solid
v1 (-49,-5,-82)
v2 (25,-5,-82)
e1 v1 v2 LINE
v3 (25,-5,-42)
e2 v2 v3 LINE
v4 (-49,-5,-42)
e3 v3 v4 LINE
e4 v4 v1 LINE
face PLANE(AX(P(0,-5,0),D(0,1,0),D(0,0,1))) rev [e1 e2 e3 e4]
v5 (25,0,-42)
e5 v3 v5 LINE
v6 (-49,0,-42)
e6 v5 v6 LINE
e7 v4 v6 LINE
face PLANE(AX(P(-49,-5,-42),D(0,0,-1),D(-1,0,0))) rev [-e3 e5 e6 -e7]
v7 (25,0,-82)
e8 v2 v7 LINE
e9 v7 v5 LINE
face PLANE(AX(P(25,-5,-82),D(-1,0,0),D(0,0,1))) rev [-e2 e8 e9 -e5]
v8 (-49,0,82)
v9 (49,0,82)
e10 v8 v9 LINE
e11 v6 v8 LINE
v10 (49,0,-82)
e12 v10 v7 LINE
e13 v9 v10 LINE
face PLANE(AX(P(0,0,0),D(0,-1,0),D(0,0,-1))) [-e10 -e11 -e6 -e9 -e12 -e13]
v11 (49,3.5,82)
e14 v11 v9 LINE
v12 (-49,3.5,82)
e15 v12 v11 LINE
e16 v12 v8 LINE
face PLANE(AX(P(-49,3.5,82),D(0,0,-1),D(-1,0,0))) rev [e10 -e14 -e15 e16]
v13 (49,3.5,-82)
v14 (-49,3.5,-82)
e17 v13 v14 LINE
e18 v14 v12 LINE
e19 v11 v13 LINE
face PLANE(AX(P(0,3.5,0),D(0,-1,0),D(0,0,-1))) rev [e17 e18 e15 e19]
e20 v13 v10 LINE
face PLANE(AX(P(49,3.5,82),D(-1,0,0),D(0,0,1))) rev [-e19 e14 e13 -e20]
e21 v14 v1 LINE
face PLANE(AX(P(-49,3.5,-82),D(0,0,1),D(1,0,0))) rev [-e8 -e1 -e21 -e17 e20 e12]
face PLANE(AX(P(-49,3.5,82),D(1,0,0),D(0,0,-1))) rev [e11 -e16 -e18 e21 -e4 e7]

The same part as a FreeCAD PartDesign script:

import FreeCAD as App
import Part
import Sketcher
from FreeCAD import Vector

doc = App.newDocument("Part")
body = doc.addObject("PartDesign::Body", "Body")

# Sketch on XZ plane
sketch1 = doc.addObject("Sketcher::SketchObject", "Sketch")
body.addObject(sketch1)
sketch1.AttachmentSupport = (doc.XZ_Plane, [""])
sketch1.MapMode = "FlatFace"
sketch1.addGeometry([
    Part.LineSegment(Vector(-49, -82, 0), Vector(-49, 82, 0)),
    Part.LineSegment(Vector(-49, 82, 0), Vector(49, 82, 0)),
    Part.LineSegment(Vector(49, 82, 0), Vector(49, -82, 0)),
    Part.LineSegment(Vector(49, -82, 0), Vector(-49, -82, 0)),
], False)
sketch1.addConstraint([
    Sketcher.Constraint("Coincident", 0, 2, 1, 1),
    Sketcher.Constraint("Coincident", 1, 2, 2, 1),
    Sketcher.Constraint("Coincident", 2, 2, 3, 1),
    Sketcher.Constraint("Coincident", 3, 2, 0, 1),
    Sketcher.Constraint("Vertical", 0),
    Sketcher.Constraint("Horizontal", 1),
    Sketcher.Constraint("Vertical", 2),
    Sketcher.Constraint("Horizontal", 3),
    Sketcher.Constraint("Symmetric", 0, 2, 2, 2, -1, 1),
    Sketcher.Constraint("DistanceX", 1, 1, 1, 2, 98.0),
    Sketcher.Constraint("DistanceY", 0, 1, 0, 2, 164.0),
])
pad1 = doc.addObject("PartDesign::Pad", "Pad")
body.addObject(pad1)
pad1.Profile = sketch1
pad1.Length = 3.5
pad1.Reversed = True

# Sketch on XZ plane
sketch2 = doc.addObject("Sketcher::SketchObject", "Sketch001")
body.addObject(sketch2)
sketch2.AttachmentSupport = (doc.XZ_Plane, [""])
sketch2.MapMode = "FlatFace"
sketch2.addGeometry([
    Part.LineSegment(Vector(-49, -42, 0), Vector(-49, -82, 0)),
    Part.LineSegment(Vector(-49, -82, 0), Vector(25, -82, 0)),
    Part.LineSegment(Vector(25, -82, 0), Vector(25, -42, 0)),
    Part.LineSegment(Vector(25, -42, 0), Vector(-49, -42, 0)),
], False)
sketch2.addConstraint([
    Sketcher.Constraint("Coincident", 0, 2, 1, 1),
    Sketcher.Constraint("Coincident", 1, 2, 2, 1),
    Sketcher.Constraint("Coincident", 2, 2, 3, 1),
    Sketcher.Constraint("Coincident", 3, 2, 0, 1),
    Sketcher.Constraint("Vertical", 0),
    Sketcher.Constraint("Horizontal", 1),
    Sketcher.Constraint("Vertical", 2),
    Sketcher.Constraint("Horizontal", 3),
    Sketcher.Constraint("DistanceX", 1, 1, 1, 2, 74.0),
    Sketcher.Constraint("DistanceY", 0, 2, 0, 1, 40.0),
    Sketcher.Constraint("DistanceX", 0, 2, -1, 1, 49.0),
    Sketcher.Constraint("DistanceY", 0, 2, -1, 1, 82.0),
])
pad2 = doc.addObject("PartDesign::Pad", "Pad001")
body.addObject(pad2)
pad2.Profile = sketch2
pad2.Length = 5

doc.recompute()
